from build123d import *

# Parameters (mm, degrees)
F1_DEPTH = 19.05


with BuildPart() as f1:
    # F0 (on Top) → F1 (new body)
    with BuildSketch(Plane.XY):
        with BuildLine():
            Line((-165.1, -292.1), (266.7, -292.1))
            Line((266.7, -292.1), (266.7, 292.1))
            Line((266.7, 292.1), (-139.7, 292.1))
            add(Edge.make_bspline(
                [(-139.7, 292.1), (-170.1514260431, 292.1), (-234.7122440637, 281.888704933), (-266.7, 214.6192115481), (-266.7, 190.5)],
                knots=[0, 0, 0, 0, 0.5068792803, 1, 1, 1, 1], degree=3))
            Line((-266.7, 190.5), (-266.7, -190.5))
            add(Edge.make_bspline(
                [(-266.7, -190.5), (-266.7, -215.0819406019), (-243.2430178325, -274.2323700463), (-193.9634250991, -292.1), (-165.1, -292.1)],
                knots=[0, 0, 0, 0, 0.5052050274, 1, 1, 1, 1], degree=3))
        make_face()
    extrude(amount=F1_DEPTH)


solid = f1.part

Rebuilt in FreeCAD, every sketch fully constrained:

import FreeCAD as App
import Part
import Sketcher
from FreeCAD import Vector
Q = App.Units.Quantity

doc = App.newDocument("Part")
body = doc.addObject("PartDesign::Body", "Body")

# Sketch on XY plane
sketch1 = doc.addObject("Sketcher::SketchObject", "Sketch")
body.addObject(sketch1)
sketch1.AttachmentSupport = (doc.XY_Plane, [""])
sketch1.MapMode = "FlatFace"
sketch1.addGeometry(Part.LineSegment(Vector(-165.1, -292.1, 0), Vector(266.7, -292.1, 0)), False)
sketch1.addGeometry(Part.LineSegment(Vector(266.7, -292.1, 0), Vector(266.7, 292.1, 0)), False)
sketch1.addGeometry(Part.LineSegment(Vector(266.7, 292.1, 0), Vector(-139.7, 292.1, 0)), False)
sketch1.addGeometry(Part.BSplineCurve([Vector(-139.7, 292.1, 0), Vector(-170.151426, 292.1, 0), Vector(-234.712244, 281.888705, 0), Vector(-266.7, 214.619212, 0), Vector(-266.7, 190.5, 0)], [4, 1, 4], [0, 0.50687928, 1], False, 3, [1, 1, 1, 1, 1], False), False)
sketch1.addGeometry(Part.LineSegment(Vector(-266.7, 190.5, 0), Vector(-266.7, -190.5, 0)), False)
sketch1.addGeometry(Part.BSplineCurve([Vector(-266.7, -190.5, 0), Vector(-266.7, -215.081941, 0), Vector(-243.243018, -274.23237, 0), Vector(-193.963425, -292.1, 0), Vector(-165.1, -292.1, 0)], [4, 1, 4], [0, 0.505205027, 1], False, 3, [1, 1, 1, 1, 1], False), False)
sketch1.addConstraint(Sketcher.Constraint("Block", 3))
sketch1.addConstraint(Sketcher.Constraint("Block", 5))
sketch1.addConstraint(Sketcher.Constraint("Coincident", 0, 2, 1, 1))
sketch1.addConstraint(Sketcher.Constraint("Coincident", 1, 2, 2, 1))
sketch1.addConstraint(Sketcher.Constraint("Coincident", 2, 2, 3, 1))
sketch1.addConstraint(Sketcher.Constraint("Coincident", 3, 2, 4, 1))
sketch1.addConstraint(Sketcher.Constraint("Coincident", 4, 2, 5, 1))
sketch1.addConstraint(Sketcher.Constraint("Coincident", 5, 2, 0, 1))
sketch1.addConstraint(Sketcher.Constraint("Horizontal", 0))
sketch1.addConstraint(Sketcher.Constraint("Vertical", 1))
sketch1.addConstraint(Sketcher.Constraint("Horizontal", 2))
sketch1.addConstraint(Sketcher.Constraint("DistanceX", 0, 1, 0, 2, Q("17 in")))
pad1 = doc.addObject("PartDesign::Pad", "Pad")
body.addObject(pad1)
pad1.Profile = sketch1
pad1.Length = Q("0.75 in")

doc.recompute()
